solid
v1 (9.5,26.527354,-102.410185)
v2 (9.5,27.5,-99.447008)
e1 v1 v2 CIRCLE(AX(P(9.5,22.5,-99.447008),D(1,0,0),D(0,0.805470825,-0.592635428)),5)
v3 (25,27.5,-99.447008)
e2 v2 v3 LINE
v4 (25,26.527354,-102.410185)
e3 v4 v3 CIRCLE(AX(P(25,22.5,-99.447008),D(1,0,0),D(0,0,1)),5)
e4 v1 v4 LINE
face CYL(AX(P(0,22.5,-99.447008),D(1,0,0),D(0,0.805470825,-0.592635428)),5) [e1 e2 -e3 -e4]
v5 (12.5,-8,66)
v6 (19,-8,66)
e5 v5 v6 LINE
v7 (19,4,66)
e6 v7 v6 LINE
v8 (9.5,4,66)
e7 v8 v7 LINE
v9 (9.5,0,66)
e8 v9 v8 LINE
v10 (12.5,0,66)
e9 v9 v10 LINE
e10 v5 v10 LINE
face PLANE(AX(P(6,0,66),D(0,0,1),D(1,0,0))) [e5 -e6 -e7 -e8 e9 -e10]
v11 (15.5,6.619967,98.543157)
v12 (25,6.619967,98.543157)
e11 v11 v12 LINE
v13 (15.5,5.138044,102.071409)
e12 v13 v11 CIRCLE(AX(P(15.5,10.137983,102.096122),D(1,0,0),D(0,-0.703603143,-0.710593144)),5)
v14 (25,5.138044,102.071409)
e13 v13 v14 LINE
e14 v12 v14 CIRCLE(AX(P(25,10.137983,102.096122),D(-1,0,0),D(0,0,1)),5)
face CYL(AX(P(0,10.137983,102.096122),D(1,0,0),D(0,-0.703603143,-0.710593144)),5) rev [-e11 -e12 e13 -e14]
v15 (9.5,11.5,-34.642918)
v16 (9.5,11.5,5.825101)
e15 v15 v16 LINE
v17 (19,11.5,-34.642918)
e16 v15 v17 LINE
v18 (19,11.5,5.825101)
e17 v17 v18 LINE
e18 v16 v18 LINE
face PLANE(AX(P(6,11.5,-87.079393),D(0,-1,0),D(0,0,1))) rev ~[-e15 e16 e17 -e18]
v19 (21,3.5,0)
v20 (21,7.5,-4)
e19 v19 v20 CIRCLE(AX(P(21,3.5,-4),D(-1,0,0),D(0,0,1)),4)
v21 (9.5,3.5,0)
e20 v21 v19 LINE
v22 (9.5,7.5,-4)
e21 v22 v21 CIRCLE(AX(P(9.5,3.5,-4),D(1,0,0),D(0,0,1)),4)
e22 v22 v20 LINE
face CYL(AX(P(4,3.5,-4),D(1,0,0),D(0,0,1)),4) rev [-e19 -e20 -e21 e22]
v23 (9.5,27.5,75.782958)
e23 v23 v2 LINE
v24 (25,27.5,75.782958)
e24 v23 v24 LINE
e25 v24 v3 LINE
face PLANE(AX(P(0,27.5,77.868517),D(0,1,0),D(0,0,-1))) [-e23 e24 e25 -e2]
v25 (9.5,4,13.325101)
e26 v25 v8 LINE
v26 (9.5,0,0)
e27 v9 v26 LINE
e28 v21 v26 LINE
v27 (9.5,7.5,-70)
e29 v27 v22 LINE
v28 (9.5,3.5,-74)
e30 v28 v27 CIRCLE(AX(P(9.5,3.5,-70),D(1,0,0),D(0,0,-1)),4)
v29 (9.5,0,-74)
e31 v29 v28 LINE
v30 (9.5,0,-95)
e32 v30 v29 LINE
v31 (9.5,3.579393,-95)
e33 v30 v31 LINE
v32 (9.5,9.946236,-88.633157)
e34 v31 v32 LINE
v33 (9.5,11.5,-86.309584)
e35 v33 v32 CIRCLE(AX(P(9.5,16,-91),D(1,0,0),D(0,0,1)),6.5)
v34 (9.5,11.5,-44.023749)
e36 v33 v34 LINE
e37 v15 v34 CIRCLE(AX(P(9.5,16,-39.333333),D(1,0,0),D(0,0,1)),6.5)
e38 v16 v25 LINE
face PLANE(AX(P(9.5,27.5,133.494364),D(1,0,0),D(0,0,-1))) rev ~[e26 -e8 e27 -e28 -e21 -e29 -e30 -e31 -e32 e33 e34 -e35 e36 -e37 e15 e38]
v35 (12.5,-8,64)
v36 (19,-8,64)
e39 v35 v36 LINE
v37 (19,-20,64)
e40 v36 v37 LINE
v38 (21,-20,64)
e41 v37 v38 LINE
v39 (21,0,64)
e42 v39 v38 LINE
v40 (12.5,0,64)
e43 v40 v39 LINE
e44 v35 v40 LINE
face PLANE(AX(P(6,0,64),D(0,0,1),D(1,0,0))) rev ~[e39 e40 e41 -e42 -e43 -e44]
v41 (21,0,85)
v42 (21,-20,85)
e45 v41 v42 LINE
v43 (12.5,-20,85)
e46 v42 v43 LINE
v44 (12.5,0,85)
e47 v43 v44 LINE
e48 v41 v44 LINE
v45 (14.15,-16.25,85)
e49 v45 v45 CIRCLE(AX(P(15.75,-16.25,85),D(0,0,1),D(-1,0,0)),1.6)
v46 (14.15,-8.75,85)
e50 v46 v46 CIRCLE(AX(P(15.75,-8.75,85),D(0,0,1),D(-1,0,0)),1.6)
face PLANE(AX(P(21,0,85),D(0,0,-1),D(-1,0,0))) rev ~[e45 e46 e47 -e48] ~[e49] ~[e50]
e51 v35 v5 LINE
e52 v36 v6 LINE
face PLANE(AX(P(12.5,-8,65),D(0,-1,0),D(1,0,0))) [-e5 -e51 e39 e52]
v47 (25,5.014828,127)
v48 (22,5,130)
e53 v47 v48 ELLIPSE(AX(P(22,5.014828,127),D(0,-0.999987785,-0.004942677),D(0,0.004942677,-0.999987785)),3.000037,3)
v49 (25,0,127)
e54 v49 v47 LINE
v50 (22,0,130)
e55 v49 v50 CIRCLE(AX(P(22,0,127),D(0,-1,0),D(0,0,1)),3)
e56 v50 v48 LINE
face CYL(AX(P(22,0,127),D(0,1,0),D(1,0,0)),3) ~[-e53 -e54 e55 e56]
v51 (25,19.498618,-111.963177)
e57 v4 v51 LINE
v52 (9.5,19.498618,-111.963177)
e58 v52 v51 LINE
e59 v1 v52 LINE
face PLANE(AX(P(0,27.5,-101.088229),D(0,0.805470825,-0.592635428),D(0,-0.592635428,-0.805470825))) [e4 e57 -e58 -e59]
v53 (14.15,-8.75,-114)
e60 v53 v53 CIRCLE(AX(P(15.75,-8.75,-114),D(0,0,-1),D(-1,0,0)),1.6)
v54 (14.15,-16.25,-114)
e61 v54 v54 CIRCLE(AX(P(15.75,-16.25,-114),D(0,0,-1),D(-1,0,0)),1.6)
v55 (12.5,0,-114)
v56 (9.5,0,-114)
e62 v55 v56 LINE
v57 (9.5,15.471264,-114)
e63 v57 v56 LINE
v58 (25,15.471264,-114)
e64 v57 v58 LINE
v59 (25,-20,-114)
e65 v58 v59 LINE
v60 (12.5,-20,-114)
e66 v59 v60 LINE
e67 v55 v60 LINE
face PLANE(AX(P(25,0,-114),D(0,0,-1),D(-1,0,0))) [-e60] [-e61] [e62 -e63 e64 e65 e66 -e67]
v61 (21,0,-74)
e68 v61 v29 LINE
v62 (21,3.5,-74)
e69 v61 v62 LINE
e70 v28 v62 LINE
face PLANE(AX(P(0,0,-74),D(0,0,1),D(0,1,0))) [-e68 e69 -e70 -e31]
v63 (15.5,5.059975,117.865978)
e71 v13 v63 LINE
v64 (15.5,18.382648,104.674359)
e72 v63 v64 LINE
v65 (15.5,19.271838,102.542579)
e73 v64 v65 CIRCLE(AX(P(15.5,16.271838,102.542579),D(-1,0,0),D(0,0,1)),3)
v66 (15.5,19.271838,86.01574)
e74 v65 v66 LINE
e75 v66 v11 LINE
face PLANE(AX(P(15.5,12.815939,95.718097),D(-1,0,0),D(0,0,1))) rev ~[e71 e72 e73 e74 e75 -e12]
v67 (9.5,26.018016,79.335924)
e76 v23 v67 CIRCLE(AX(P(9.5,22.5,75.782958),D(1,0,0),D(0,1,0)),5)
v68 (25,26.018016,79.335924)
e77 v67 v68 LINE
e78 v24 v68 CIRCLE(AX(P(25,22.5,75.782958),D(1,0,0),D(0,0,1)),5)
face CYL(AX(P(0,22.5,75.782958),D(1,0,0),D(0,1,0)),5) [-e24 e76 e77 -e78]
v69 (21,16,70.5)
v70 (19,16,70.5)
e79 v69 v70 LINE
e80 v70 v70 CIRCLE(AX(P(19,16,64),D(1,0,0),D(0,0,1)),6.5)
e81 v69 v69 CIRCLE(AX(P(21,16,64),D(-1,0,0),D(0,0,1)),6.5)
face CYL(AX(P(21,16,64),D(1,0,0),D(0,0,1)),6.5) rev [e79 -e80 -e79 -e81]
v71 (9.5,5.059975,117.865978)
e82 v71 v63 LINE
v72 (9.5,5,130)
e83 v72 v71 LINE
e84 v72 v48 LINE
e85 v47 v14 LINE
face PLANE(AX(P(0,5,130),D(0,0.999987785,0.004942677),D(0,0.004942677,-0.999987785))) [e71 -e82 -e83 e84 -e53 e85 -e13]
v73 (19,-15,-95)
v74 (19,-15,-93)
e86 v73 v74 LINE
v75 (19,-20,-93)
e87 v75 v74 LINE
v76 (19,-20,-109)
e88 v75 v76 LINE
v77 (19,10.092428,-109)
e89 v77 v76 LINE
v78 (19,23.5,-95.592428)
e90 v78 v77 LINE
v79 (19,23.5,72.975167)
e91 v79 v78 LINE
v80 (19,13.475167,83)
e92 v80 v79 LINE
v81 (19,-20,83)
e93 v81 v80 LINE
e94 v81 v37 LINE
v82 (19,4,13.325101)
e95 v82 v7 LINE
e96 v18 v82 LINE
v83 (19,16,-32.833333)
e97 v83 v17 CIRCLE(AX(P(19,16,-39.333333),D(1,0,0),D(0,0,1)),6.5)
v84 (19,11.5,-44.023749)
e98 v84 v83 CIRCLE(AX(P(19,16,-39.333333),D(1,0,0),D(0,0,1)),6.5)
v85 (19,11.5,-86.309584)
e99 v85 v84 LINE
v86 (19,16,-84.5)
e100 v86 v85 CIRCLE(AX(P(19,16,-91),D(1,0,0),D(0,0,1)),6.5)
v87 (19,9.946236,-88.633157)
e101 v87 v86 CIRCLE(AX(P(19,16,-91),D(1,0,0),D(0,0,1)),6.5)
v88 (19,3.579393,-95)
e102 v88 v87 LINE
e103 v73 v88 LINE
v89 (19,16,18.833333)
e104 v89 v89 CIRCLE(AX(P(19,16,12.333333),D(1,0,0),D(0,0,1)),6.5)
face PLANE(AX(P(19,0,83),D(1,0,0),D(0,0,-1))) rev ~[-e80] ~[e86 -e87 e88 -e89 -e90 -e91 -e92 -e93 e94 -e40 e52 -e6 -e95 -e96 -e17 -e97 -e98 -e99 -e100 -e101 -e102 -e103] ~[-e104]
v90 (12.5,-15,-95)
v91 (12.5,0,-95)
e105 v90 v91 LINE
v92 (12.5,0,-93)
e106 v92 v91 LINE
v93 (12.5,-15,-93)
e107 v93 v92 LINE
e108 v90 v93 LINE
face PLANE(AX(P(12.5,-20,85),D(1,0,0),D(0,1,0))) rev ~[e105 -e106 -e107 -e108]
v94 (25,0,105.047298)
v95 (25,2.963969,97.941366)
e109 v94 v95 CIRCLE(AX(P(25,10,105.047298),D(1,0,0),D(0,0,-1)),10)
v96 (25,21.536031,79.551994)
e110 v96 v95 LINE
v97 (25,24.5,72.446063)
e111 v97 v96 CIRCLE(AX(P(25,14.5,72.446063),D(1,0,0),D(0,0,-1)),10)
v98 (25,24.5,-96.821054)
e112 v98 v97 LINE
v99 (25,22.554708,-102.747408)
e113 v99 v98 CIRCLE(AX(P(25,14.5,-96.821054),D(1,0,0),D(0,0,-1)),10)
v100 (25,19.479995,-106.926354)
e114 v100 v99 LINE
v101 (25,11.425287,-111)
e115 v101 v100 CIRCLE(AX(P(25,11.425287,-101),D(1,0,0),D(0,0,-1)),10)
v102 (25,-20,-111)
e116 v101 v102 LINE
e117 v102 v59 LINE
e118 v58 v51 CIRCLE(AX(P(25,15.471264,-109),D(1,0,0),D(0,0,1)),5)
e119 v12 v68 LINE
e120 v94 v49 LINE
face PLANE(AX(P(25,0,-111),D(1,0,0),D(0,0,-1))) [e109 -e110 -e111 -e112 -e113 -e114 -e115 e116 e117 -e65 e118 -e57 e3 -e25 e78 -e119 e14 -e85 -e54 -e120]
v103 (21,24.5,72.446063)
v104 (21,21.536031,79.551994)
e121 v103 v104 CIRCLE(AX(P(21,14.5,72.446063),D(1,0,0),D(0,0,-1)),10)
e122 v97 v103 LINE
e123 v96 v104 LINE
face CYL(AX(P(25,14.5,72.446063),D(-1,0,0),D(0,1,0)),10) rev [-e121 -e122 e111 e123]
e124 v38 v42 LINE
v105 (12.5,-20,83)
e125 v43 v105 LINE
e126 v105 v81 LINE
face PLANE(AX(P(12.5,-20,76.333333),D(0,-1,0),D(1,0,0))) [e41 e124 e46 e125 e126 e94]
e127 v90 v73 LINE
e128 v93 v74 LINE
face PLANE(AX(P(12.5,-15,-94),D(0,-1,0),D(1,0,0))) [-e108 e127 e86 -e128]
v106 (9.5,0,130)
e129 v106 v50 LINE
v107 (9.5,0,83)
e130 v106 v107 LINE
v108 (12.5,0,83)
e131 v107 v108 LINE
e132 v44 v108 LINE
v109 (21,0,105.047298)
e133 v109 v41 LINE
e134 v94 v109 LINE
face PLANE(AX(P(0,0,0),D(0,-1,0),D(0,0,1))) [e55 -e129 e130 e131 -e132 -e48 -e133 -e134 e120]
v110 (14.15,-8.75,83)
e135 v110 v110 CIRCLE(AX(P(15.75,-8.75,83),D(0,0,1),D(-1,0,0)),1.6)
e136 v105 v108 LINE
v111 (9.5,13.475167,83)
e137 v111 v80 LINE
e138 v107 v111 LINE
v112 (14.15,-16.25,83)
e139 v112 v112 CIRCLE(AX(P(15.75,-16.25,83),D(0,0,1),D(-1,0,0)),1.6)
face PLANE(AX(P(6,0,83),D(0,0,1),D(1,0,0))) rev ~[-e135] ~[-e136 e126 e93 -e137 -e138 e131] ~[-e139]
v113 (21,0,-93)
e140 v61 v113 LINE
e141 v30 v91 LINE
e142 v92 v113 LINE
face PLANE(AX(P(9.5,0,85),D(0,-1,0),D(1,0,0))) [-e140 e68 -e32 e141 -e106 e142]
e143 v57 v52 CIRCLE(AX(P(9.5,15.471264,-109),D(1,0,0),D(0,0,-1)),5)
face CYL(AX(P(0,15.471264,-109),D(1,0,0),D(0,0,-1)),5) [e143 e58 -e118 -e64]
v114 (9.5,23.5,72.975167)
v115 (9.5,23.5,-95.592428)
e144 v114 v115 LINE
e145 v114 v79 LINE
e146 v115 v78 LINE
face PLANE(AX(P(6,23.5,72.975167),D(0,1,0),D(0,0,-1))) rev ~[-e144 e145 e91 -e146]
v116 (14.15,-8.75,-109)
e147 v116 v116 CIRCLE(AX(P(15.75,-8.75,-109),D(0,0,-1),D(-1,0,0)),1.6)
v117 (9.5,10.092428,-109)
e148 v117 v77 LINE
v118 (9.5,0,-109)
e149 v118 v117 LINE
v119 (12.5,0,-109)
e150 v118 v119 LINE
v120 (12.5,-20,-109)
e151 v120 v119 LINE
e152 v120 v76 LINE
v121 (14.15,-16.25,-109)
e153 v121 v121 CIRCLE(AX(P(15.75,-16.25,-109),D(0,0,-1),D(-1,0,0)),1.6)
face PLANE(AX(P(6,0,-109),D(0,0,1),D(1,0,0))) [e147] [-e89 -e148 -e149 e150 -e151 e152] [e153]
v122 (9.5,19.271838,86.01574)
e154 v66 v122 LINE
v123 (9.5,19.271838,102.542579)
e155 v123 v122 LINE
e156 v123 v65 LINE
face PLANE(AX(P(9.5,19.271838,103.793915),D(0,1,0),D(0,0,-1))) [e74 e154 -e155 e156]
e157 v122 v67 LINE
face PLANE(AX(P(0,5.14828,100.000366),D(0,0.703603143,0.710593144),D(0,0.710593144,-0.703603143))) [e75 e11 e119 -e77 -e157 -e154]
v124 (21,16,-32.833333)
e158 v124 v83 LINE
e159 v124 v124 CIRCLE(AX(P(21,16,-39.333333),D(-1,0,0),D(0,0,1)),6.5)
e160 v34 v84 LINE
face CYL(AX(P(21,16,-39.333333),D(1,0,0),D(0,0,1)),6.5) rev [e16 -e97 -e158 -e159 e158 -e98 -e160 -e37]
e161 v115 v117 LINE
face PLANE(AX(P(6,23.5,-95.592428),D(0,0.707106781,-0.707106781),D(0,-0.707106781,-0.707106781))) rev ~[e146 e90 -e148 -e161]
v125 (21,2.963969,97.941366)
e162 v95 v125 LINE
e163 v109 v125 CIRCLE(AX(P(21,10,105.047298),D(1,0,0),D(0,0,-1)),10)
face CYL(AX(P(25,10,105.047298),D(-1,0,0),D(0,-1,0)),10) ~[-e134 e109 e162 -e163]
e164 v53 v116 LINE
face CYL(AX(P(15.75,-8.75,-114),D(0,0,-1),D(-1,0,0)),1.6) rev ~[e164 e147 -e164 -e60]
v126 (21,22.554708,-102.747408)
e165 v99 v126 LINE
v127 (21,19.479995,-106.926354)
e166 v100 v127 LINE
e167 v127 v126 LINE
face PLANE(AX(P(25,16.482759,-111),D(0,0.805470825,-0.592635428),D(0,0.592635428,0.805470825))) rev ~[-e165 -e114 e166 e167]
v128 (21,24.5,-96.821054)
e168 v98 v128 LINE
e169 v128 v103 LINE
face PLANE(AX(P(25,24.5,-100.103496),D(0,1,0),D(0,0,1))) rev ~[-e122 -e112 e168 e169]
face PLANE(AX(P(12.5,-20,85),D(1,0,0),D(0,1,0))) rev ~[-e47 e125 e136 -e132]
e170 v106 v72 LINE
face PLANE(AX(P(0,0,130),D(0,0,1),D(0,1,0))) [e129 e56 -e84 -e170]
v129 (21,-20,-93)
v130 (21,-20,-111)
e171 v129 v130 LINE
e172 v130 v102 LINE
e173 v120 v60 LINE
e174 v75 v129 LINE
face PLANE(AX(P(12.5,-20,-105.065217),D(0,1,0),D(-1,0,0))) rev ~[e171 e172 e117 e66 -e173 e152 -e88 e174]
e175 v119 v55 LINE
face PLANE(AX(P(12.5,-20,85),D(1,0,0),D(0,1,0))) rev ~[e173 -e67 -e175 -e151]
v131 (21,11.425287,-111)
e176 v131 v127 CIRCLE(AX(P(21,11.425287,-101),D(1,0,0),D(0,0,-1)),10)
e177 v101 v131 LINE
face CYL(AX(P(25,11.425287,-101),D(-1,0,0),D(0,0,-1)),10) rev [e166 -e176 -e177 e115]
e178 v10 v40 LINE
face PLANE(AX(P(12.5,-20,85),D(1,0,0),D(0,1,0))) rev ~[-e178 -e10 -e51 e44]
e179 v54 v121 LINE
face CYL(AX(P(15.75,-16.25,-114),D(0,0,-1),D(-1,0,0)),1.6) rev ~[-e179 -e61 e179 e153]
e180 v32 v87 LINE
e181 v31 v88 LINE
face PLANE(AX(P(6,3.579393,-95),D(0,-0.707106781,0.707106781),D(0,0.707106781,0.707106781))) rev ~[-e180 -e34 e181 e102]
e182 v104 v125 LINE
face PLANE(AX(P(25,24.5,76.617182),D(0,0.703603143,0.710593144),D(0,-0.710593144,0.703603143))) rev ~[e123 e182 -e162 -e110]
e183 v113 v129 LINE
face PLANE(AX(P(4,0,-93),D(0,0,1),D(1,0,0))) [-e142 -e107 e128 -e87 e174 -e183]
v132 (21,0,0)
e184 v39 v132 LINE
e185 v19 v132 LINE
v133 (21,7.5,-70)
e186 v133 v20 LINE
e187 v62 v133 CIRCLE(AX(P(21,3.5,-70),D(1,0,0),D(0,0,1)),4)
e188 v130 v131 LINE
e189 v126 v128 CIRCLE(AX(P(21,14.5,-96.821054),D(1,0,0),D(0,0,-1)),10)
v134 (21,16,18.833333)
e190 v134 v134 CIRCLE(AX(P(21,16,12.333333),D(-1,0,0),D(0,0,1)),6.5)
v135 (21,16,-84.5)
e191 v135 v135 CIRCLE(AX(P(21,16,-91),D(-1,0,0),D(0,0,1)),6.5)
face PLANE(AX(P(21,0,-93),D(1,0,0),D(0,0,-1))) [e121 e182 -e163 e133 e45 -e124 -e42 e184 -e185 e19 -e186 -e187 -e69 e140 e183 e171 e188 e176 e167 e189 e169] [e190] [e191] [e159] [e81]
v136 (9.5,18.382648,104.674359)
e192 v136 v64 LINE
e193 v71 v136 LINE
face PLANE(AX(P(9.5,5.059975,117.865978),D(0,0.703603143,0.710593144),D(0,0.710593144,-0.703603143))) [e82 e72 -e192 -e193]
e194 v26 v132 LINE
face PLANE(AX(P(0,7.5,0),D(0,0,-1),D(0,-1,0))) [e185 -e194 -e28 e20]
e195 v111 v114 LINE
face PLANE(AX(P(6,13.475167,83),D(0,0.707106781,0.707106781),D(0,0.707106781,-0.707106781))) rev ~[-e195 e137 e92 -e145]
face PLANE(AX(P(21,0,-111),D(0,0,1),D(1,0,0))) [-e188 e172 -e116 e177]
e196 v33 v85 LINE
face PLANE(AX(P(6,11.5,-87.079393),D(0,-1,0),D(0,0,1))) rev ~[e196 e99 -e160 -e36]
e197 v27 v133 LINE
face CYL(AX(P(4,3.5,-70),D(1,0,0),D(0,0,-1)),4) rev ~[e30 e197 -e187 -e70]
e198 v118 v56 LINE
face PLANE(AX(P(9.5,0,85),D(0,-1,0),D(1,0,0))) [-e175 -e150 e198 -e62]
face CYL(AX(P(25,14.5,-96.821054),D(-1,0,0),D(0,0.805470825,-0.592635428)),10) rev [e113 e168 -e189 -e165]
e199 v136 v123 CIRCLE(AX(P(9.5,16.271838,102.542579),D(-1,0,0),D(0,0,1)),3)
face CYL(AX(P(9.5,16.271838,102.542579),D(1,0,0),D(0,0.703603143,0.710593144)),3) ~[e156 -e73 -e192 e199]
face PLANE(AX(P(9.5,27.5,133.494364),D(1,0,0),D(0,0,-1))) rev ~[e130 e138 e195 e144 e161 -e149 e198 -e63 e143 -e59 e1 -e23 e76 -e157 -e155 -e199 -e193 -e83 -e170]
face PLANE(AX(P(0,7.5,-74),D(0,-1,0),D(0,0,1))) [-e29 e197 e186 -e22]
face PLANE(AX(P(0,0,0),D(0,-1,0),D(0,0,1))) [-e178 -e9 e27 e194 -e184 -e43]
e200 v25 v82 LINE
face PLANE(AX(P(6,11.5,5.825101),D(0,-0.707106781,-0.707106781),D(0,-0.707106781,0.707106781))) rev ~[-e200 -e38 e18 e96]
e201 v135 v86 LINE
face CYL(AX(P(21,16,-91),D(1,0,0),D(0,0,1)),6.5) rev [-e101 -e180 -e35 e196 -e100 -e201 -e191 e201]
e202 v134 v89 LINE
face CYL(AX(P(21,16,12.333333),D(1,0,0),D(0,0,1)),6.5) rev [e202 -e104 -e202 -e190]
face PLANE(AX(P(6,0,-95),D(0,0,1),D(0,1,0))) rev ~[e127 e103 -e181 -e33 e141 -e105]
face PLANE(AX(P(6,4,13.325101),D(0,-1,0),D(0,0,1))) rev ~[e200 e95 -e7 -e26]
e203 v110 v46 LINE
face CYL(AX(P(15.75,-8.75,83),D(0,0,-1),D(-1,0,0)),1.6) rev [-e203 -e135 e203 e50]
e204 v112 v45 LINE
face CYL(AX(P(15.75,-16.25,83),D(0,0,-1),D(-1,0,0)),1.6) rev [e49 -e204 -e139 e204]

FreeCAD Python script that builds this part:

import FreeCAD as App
import Part
import Sketcher
Q = App.Units.Quantity


def edges_at(feature, points):
    """Names of the edges that pass closest to the given points."""
    edges = feature.Shape.Edges
    near = lambda p: min(range(len(edges)), key=lambda i: edges[i].distToShape(Part.Vertex(*p))[0])
    return sorted({f"Edge{near(p) + 1}" for p in points})

doc = App.newDocument("Part")
body = doc.addObject("PartDesign::Body", "Body")

sketch1 = body.newObject("Sketcher::SketchObject", "Sketch")
sketch1.AttachmentSupport = (doc.getObject("YZ_Plane"), [""])
sketch1.MapMode = "FlatFace"
sketch1.addGeometry([
    Part.LineSegment(App.Vector(0, 130, 0), App.Vector(0, 0, 0)),
    Part.LineSegment(App.Vector(0, 0, 0), App.Vector(7.5, 0, 0)),
    Part.LineSegment(App.Vector(7.5, 0, 0), App.Vector(7.5, -74, 0)),
    Part.LineSegment(App.Vector(7.5, -74, 0), App.Vector(0, -74, 0)),
    Part.LineSegment(App.Vector(0, -74, 0), App.Vector(0, -114, 0)),
    Part.LineSegment(App.Vector(0, -114, 0), App.Vector(18, -114, 0)),
    Part.LineSegment(App.Vector(18, -114, 0), App.Vector(27.5, -101.088229, 0)),
    Part.LineSegment(App.Vector(27.5, -101.088229, 0), App.Vector(27.5, 77.868517, 0)),
    Part.LineSegment(App.Vector(27.5, 77.868517, 0), App.Vector(5.14828, 100.000366, 0)),
    Part.LineSegment(App.Vector(5.14828, 100.000366, 0), App.Vector(5, 130, 0)),
    Part.LineSegment(App.Vector(5, 130, 0), App.Vector(0, 130, 0)),
], False)
sketch1.addConstraint([
    Sketcher.Constraint("Coincident", 0, 2, 1, 1),
    Sketcher.Constraint("Coincident", 1, 2, 2, 1),
    Sketcher.Constraint("Coincident", 2, 2, 3, 1),
    Sketcher.Constraint("Coincident", 3, 2, 4, 1),
    Sketcher.Constraint("Coincident", 4, 2, 5, 1),
    Sketcher.Constraint("Coincident", 5, 2, 6, 1),
    Sketcher.Constraint("Coincident", 6, 2, 7, 1),
    Sketcher.Constraint("Coincident", 7, 2, 8, 1),
    Sketcher.Constraint("Coincident", 8, 2, 9, 1),
    Sketcher.Constraint("Coincident", 9, 2, 10, 1),
    Sketcher.Constraint("Coincident", 10, 2, 0, 1),
    Sketcher.Constraint("Vertical", 0),
    Sketcher.Constraint("Horizontal", 1),
    Sketcher.Constraint("Vertical", 2),
    Sketcher.Constraint("Horizontal", 3),
    Sketcher.Constraint("Vertical", 4),
    Sketcher.Constraint("Horizontal", 5),
    Sketcher.Constraint("Vertical", 7),
    Sketcher.Constraint("Horizontal", 10),
    Sketcher.Constraint("Coincident", 0, 2, -1, 1),
    Sketcher.Constraint("PointOnObject", 3, 2, -2),
    Sketcher.Constraint("DistanceX", 5, 1, 5, 2, Q("18 mm")),
    Sketcher.Constraint("DistanceX", 10, 2, 10, 1, Q("5 mm")),
    Sketcher.Constraint("DistanceY", 0, 2, 0, 1, Q("130 mm")),
    Sketcher.Constraint("DistanceY", 2, 2, 2, 1, Q("74 mm")),
    Sketcher.Constraint("DistanceY", 4, 2, 4, 1, Q("40 mm")),
    Sketcher.Constraint("Distance", 9, Q("30 mm")),
    Sketcher.Constraint("DistanceX", 1, 1, 1, 2, Q("7.5 mm")),
    Sketcher.Constraint("DistanceX", 2, 2, 6, 2, Q("20 mm")),
    Sketcher.Constraint("Distance", 6, Q("16.030091 mm")),
    Sketcher.Constraint("DistanceY", 7, 1, 7, 2, Q("178.956747 mm")),
    Sketcher.Constraint("DistanceX", -1, 1, 8, 2, Q("5.14828 mm")),
])
pad1 = body.newObject("PartDesign::Pad", "Pad")
pad1.Profile = sketch1
pad1.Length = 25

sketch2 = body.newObject("Sketcher::SketchObject", "Sketch001")
sketch2.AttachmentSupport = (doc.getObject("YZ_Plane"), [""])
sketch2.MapMode = "FlatFace"
sketch2.AttachmentOffset = App.Placement(App.Vector(0, 0, 25), App.Rotation())
sketch2.addGeometry([
    Part.LineSegment(App.Vector(0, 100.876179, 0), App.Vector(0, -111, 0)),
    Part.LineSegment(App.Vector(0, -111, 0), App.Vector(16.482759, -111, 0)),
    Part.LineSegment(App.Vector(16.482759, -111, 0), App.Vector(24.5, -100.103496, 0)),
    Part.LineSegment(App.Vector(24.5, -100.103496, 0), App.Vector(24.5, 76.617182, 0)),
    Part.LineSegment(App.Vector(24.5, 76.617182, 0), App.Vector(0, 100.876179, 0)),
], False)
sketch2.addConstraint([
    Sketcher.Constraint("Coincident", 0, 2, 1, 1),
    Sketcher.Constraint("Coincident", 1, 2, 2, 1),
    Sketcher.Constraint("Coincident", 2, 2, 3, 1),
    Sketcher.Constraint("Coincident", 3, 2, 4, 1),
    Sketcher.Constraint("Coincident", 4, 2, 0, 1),
    Sketcher.Constraint("Vertical", 0),
    Sketcher.Constraint("Horizontal", 1),
    Sketcher.Constraint("Vertical", 3),
    Sketcher.Constraint("PointOnObject", 0, 2, -2),
    Sketcher.Constraint("DistanceY", 0, 2, -1, 1, Q("111 mm")),
    Sketcher.Constraint("DistanceX", -1, 1, 2, 2, Q("24.5 mm")),
    Sketcher.Constraint("DistanceX", 1, 1, 1, 2, Q("16.482759 mm")),
    Sketcher.Constraint("DistanceY", 0, 2, 0, 1, Q("211.876179 mm")),
    Sketcher.Constraint("DistanceY", 3, 1, 3, 2, Q("176.720678 mm")),
    Sketcher.Constraint("Distance", 4, Q("34.478239 mm")),
])
pocket1 = body.newObject("PartDesign::Pocket", "Pocket")
pocket1.Profile = sketch2
pocket1.Length = 4
doc.recompute()

datumplane = body.newObject("PartDesign::Plane", "DatumPlane")
datumplane.AttachmentSupport = (doc.getObject("YZ_Plane"), [""])
datumplane.MapMode = "FlatFace"
datumplane.AttachmentOffset = App.Placement(App.Vector(0, 0, 12.5), App.Rotation())
mirrored = body.newObject("PartDesign::Mirrored", "Mirrored")
mirrored.Originals = [pocket1]
mirrored.MirrorPlane = (datumplane, [""])
body.Tip = mirrored
doc.recompute()

fillet = body.newObject("PartDesign::Fillet", "Fillet")
fillet.Base = (mirrored, edges_at(mirrored, [(12.5, 7.5, -74), (12.5, 7.5, 0)]))
fillet.Radius = 4
doc.recompute()

fillet2 = body.newObject("PartDesign::Fillet", "Fillet001")
fillet2.Base = (fillet, edges_at(fillet, [
    (23, 0, 100.876),
    (23, 24.5, 76.617),
    (23, 24.5, -100.103),
    (23, 16.483, -111),
    (2, 0, 100.876),
    (2, 16.483, -111),
    (2, 24.5, -100.103),
    (2, 24.5, 76.617),
]))
fillet2.Radius = 10
doc.recompute()

fillet3 = body.newObject("PartDesign::Fillet", "Fillet002")
fillet3.Base = (fillet2, edges_at(fillet2, [
    (12.5, 5.148, 100),
    (12.5, 27.5, 77.869),
    (12.5, 27.5, -101.088),
    (12.5, 18, -114),
]))
fillet3.Radius = 5
doc.recompute()

fillet4 = body.newObject("PartDesign::Fillet", "Fillet003")
fillet4.Base = (fillet3, edges_at(fillet3, [(0, 2.5, 130), (25, 2.5, 130)]))
fillet4.Radius = 3

sketch3 = body.newObject("Sketcher::SketchObject", "Sketch002")
sketch3.AttachmentSupport = (doc.getObject("YZ_Plane"), [""])
sketch3.MapMode = "FlatFace"
sketch3.AttachmentOffset = App.Placement(App.Vector(0, 0, 12.5), App.Rotation())
sketch3.addGeometry([
    Part.LineSegment(App.Vector(19.271838, 103.793915, 0), App.Vector(5.059975, 117.865978, 0)),
    Part.LineSegment(App.Vector(5.059975, 117.865978, 0), App.Vector(5.059975, 95.865978, 0)),
    Part.LineSegment(App.Vector(5.059975, 95.865978, 0), App.Vector(19.271838, 72.60525, 0)),
    Part.LineSegment(App.Vector(19.271838, 72.60525, 0), App.Vector(19.271838, 103.793915, 0)),
], False)
sketch3.addConstraint([
    Sketcher.Constraint("Coincident", 0, 2, 1, 1),
    Sketcher.Constraint("Coincident", 1, 2, 2, 1),
    Sketcher.Constraint("Coincident", 2, 2, 3, 1),
    Sketcher.Constraint("Coincident", 3, 2, 0, 1),
    Sketcher.Constraint("Vertical", 1),
    Sketcher.Constraint("Vertical", 3),
    Sketcher.Constraint("DistanceY", 1, 2, 1, 1, Q("22 mm")),
    Sketcher.Constraint("Distance", 0, Q("20 mm")),
    Sketcher.Constraint("DistanceY", 3, 1, 3, 2, Q("31.188665 mm")),
    Sketcher.Constraint("DistanceX", -1, 1, 2, 2, Q("19.271838 mm")),
    Sketcher.Constraint("DistanceY", -1, 1, 2, 2, Q("72.60525 mm")),
    Sketcher.Constraint("Distance", 2, Q("27.258732 mm")),
])
pad2 = body.newObject("PartDesign::Pad", "Pad001")
pad2.Profile = sketch3
pad2.Type = "TwoLengths"
pad2.Length = 3
pad2.Length2 = 3
doc.recompute()

fillet5 = body.newObject("PartDesign::Fillet", "Fillet004")
fillet5.Base = (pad2, edges_at(pad2, [(12.5, 19.272, 103.794)]))
fillet5.Radius = 3

sketch4 = body.newObject("Sketcher::SketchObject", "Sketch003")
sketch4.AttachmentSupport = (doc.getObject("XZ_Plane"), [""])
sketch4.MapMode = "FlatFace"
sketch4.addGeometry([
    Part.LineSegment(App.Vector(4, -111, 0), App.Vector(0, -111, 0)),
    Part.LineSegment(App.Vector(0, -111, 0), App.Vector(0, -114, 0)),
    Part.LineSegment(App.Vector(0, -114, 0), App.Vector(25, -114, 0)),
    Part.LineSegment(App.Vector(25, -114, 0), App.Vector(25, -111, 0)),
    Part.LineSegment(App.Vector(25, -111, 0), App.Vector(21, -111, 0)),
    Part.LineSegment(App.Vector(21, -111, 0), App.Vector(21, -93, 0)),
    Part.LineSegment(App.Vector(21, -93, 0), App.Vector(4, -93, 0)),
    Part.LineSegment(App.Vector(4, -93, 0), App.Vector(4, -111, 0)),
    Part.LineSegment(App.Vector(6, -109, 0), App.Vector(6, -95, 0)),
    Part.LineSegment(App.Vector(6, -95, 0), App.Vector(19, -95, 0)),
    Part.LineSegment(App.Vector(19, -95, 0), App.Vector(19, -109, 0)),
    Part.LineSegment(App.Vector(19, -109, 0), App.Vector(6, -109, 0)),
], False)
sketch4.addConstraint([
    Sketcher.Constraint("Coincident", 0, 2, 1, 1),
    Sketcher.Constraint("Coincident", 1, 2, 2, 1),
    Sketcher.Constraint("Coincident", 2, 2, 3, 1),
    Sketcher.Constraint("Coincident", 3, 2, 4, 1),
    Sketcher.Constraint("Coincident", 4, 2, 5, 1),
    Sketcher.Constraint("Coincident", 5, 2, 6, 1),
    Sketcher.Constraint("Coincident", 6, 2, 7, 1),
    Sketcher.Constraint("Coincident", 7, 2, 0, 1),
    Sketcher.Constraint("Coincident", 8, 2, 9, 1),
    Sketcher.Constraint("Coincident", 9, 2, 10, 1),
    Sketcher.Constraint("Coincident", 10, 2, 11, 1),
    Sketcher.Constraint("Coincident", 11, 2, 8, 1),
    Sketcher.Constraint("Horizontal", 0),
    Sketcher.Constraint("Vertical", 1),
    Sketcher.Constraint("Horizontal", 2),
    Sketcher.Constraint("Vertical", 3),
    Sketcher.Constraint("Horizontal", 4),
    Sketcher.Constraint("Vertical", 5),
    Sketcher.Constraint("Horizontal", 6),
    Sketcher.Constraint("Vertical", 7),
    Sketcher.Constraint("Vertical", 8),
    Sketcher.Constraint("Horizontal", 9),
    Sketcher.Constraint("Vertical", 10),
    Sketcher.Constraint("Horizontal", 11),
    Sketcher.Constraint("PointOnObject", 0, 2, -2),
    Sketcher.Constraint("Horizontal", 0, 2, 3, 2),
    Sketcher.Constraint("Equal", 0, 4),
    Sketcher.Constraint("DistanceX", 0, 2, 0, 1, Q("4 mm")),
    Sketcher.Constraint("DistanceX", 2, 1, 2, 2, Q("25 mm")),
    Sketcher.Constraint("DistanceX", 9, 1, 9, 2, Q("13 mm")),
    Sketcher.Constraint("DistanceY", 1, 2, 1, 1, Q("3 mm")),
    Sketcher.Constraint("DistanceY", 5, 1, 5, 2, Q("18 mm")),
    Sketcher.Constraint("DistanceY", 8, 1, 8, 2, Q("14 mm")),
    Sketcher.Constraint("DistanceY", 0, 2, -1, 1, Q("111 mm")),
    Sketcher.Constraint("DistanceX", -1, 1, 8, 2, Q("6 mm")),
    Sketcher.Constraint("DistanceY", 8, 2, -1, 1, Q("95 mm")),
])
pad3 = body.newObject("PartDesign::Pad", "Pad002")
pad3.Profile = sketch4
pad3.Length = 20

sketch5 = body.newObject("Sketcher::SketchObject", "Sketch004")
sketch5.AttachmentSupport = (doc.getObject("XZ_Plane"), [""])
sketch5.MapMode = "FlatFace"
sketch5.addGeometry([
    Part.LineSegment(App.Vector(21, 85, 0), App.Vector(4, 85, 0)),
    Part.LineSegment(App.Vector(4, 85, 0), App.Vector(4, 64, 0)),
    Part.LineSegment(App.Vector(4, 64, 0), App.Vector(6, 64, 0)),
    Part.LineSegment(App.Vector(6, 64, 0), App.Vector(6, 83, 0)),
    Part.LineSegment(App.Vector(6, 83, 0), App.Vector(19, 83, 0)),
    Part.LineSegment(App.Vector(19, 83, 0), App.Vector(19, 64, 0)),
    Part.LineSegment(App.Vector(19, 64, 0), App.Vector(21, 64, 0)),
    Part.LineSegment(App.Vector(21, 64, 0), App.Vector(21, 85, 0)),
], False)
sketch5.addConstraint([
    Sketcher.Constraint("Coincident", 0, 2, 1, 1),
    Sketcher.Constraint("Coincident", 1, 2, 2, 1),
    Sketcher.Constraint("Coincident", 2, 2, 3, 1),
    Sketcher.Constraint("Coincident", 3, 2, 4, 1),
    Sketcher.Constraint("Coincident", 4, 2, 5, 1),
    Sketcher.Constraint("Coincident", 5, 2, 6, 1),
    Sketcher.Constraint("Coincident", 6, 2, 7, 1),
    Sketcher.Constraint("Coincident", 7, 2, 0, 1),
    Sketcher.Constraint("Horizontal", 0),
    Sketcher.Constraint("Vertical", 1),
    Sketcher.Constraint("Horizontal", 2),
    Sketcher.Constraint("Vertical", 3),
    Sketcher.Constraint("Horizontal", 4),
    Sketcher.Constraint("Vertical", 5),
    Sketcher.Constraint("Horizontal", 6),
    Sketcher.Constraint("Vertical", 7),
    Sketcher.Constraint("Horizontal", 2, 2, 5, 2),
    Sketcher.Constraint("Equal", 2, 6),
    Sketcher.Constraint("DistanceX", 0, 2, 0, 1, Q("17 mm")),
    Sketcher.Constraint("DistanceX", 2, 1, 2, 2, Q("2 mm")),
    Sketcher.Constraint("DistanceY", 1, 2, 1, 1, Q("21 mm")),
    Sketcher.Constraint("DistanceY", 3, 1, 3, 2, Q("19 mm")),
    Sketcher.Constraint("DistanceX", -1, 1, 0, 2, Q("4 mm")),
    Sketcher.Constraint("DistanceY", -1, 1, 0, 2, Q("85 mm")),
])
pad4 = body.newObject("PartDesign::Pad", "Pad003")
pad4.Profile = sketch5
pad4.Length = 20

sketch6 = body.newObject("Sketcher::SketchObject", "Sketch005")
sketch6.AttachmentSupport = (doc.getObject("XZ_Plane"), [""])
sketch6.MapMode = "FlatFace"
sketch6.addGeometry([
    Part.LineSegment(App.Vector(6, 66, 0), App.Vector(6, 64, 0)),
    Part.LineSegment(App.Vector(6, 64, 0), App.Vector(19, 64, 0)),
    Part.LineSegment(App.Vector(19, 64, 0), App.Vector(19, 66, 0)),
    Part.LineSegment(App.Vector(19, 66, 0), App.Vector(6, 66, 0)),
], False)
sketch6.addConstraint([
    Sketcher.Constraint("Coincident", 0, 2, 1, 1),
    Sketcher.Constraint("Coincident", 1, 2, 2, 1),
    Sketcher.Constraint("Coincident", 2, 2, 3, 1),
    Sketcher.Constraint("Coincident", 3, 2, 0, 1),
    Sketcher.Constraint("Vertical", 0),
    Sketcher.Constraint("Horizontal", 1),
    Sketcher.Constraint("Vertical", 2),
    Sketcher.Constraint("Horizontal", 3),
    Sketcher.Constraint("DistanceX", 1, 1, 1, 2, Q("13 mm")),
    Sketcher.Constraint("DistanceY", 0, 2, 0, 1, Q("2 mm")),
    Sketcher.Constraint("DistanceX", -1, 1, 0, 2, Q("6 mm")),
    Sketcher.Constraint("DistanceY", -1, 1, 0, 2, Q("64 mm")),
])
pad5 = body.newObject("PartDesign::Pad", "Pad004")
pad5.Profile = sketch6
pad5.Length = 8

sketch7 = body.newObject("Sketcher::SketchObject", "Sketch006")
sketch7.AttachmentSupport = (doc.getObject("XZ_Plane"), [""])
sketch7.MapMode = "FlatFace"
sketch7.AttachmentOffset = App.Placement(App.Vector(0, 0, 20), App.Rotation())
sketch7.addGeometry([
    Part.LineSegment(App.Vector(6, -93, 0), App.Vector(6, -95, 0)),
    Part.LineSegment(App.Vector(6, -95, 0), App.Vector(19, -95, 0)),
    Part.LineSegment(App.Vector(19, -95, 0), App.Vector(19, -93, 0)),
    Part.LineSegment(App.Vector(19, -93, 0), App.Vector(6, -93, 0)),
], False)
sketch7.addConstraint([
    Sketcher.Constraint("Coincident", 0, 2, 1, 1),
    Sketcher.Constraint("Coincident", 1, 2, 2, 1),
    Sketcher.Constraint("Coincident", 2, 2, 3, 1),
    Sketcher.Constraint("Coincident", 3, 2, 0, 1),
    Sketcher.Constraint("Vertical", 0),
    Sketcher.Constraint("Horizontal", 1),
    Sketcher.Constraint("Vertical", 2),
    Sketcher.Constraint("Horizontal", 3),
    Sketcher.Constraint("DistanceX", 1, 1, 1, 2, Q("13 mm")),
    Sketcher.Constraint("DistanceY", 0, 2, 0, 1, Q("2 mm")),
    Sketcher.Constraint("DistanceX", -1, 1, 0, 2, Q("6 mm")),
    Sketcher.Constraint("DistanceY", 0, 2, -1, 1, Q("95 mm")),
])
pocket2 = body.newObject("PartDesign::Pocket", "Pocket001")
pocket2.Profile = sketch7
pocket2.Length = 5

sketch8 = body.newObject("Sketcher::SketchObject", "Sketch007")
sketch8.AttachmentSupport = (doc.getObject("XY_Plane"), [""])
sketch8.MapMode = "FlatFace"
sketch8.AttachmentOffset = App.Placement(App.Vector(0, 0, -114), App.Rotation())
sketch8.addGeometry([
    Part.Circle(App.Vector(15.75, -16.25, 0), App.Vector(0, 0, 1), 1.6),
    Part.Circle(App.Vector(15.75, -8.75, 0), App.Vector(0, 0, 1), 1.6),
    Part.Circle(App.Vector(9.25, -8.75, 0), App.Vector(0, 0, 1), 1.6),
    Part.Circle(App.Vector(9.25, -16.25, 0), App.Vector(0, 0, 1), 1.6),
], False)
sketch8.addConstraint([
    Sketcher.Constraint("Equal", 0, 1),
    Sketcher.Constraint("Equal", 1, 2),
    Sketcher.Constraint("Equal", 2, 3),
    Sketcher.Constraint("Horizontal", 1, 3, 2, 3),
    Sketcher.Constraint("Horizontal", 0, 3, 3, 3),
    Sketcher.Constraint("Vertical", 0, 3, 1, 3),
    Sketcher.Constraint("Vertical", 2, 3, 3, 3),
    Sketcher.Constraint("Diameter", 0, Q("3.2 mm")),
    Sketcher.Constraint("DistanceY", 0, 3, 1, 3, Q("7.5 mm")),
    Sketcher.Constraint("DistanceX", 2, 3, 1, 3, Q("6.5 mm")),
    Sketcher.Constraint("DistanceX", -1, 1, 0, 3, Q("15.75 mm")),
    Sketcher.Constraint("DistanceY", 0, 3, -1, 1, Q("16.25 mm")),
])
pocket3 = body.newObject("PartDesign::Pocket", "Pocket002")
pocket3.Profile = sketch8
pocket3.Length = 19
pocket3.Reversed = True

sketch9 = body.newObject("Sketcher::SketchObject", "Sketch008")
sketch9.AttachmentSupport = (doc.getObject("XY_Plane"), [""])
sketch9.MapMode = "FlatFace"
sketch9.AttachmentOffset = App.Placement(App.Vector(0, 0, 83), App.Rotation())
sketch9.addGeometry([
    Part.Circle(App.Vector(15.75, -16.25, 0), App.Vector(0, 0, 1), 1.6),
    Part.Circle(App.Vector(9.25, -16.25, 0), App.Vector(0, 0, 1), 1.6),
    Part.Circle(App.Vector(9.25, -8.75, 0), App.Vector(0, 0, 1), 1.6),
    Part.Circle(App.Vector(15.75, -8.75, 0), App.Vector(0, 0, 1), 1.6),
], False)
sketch9.addConstraint([
    Sketcher.Constraint("Equal", 0, 1),
    Sketcher.Constraint("Equal", 1, 2),
    Sketcher.Constraint("Equal", 2, 3),
    Sketcher.Constraint("Horizontal", 0, 3, 1, 3),
    Sketcher.Constraint("Horizontal", 2, 3, 3, 3),
    Sketcher.Constraint("Vertical", 1, 3, 2, 3),
    Sketcher.Constraint("Vertical", 0, 3, 3, 3),
    Sketcher.Constraint("Diameter", 0, Q("3.2 mm")),
    Sketcher.Constraint("DistanceX", 1, 3, 0, 3, Q("6.5 mm")),
    Sketcher.Constraint("DistanceY", 1, 3, 2, 3, Q("7.5 mm")),
    Sketcher.Constraint("DistanceX", -1, 1, 0, 3, Q("15.75 mm")),
    Sketcher.Constraint("DistanceY", 0, 3, -1, 1, Q("16.25 mm")),
])
pocket4 = body.newObject("PartDesign::Pocket", "Pocket003")
pocket4.Profile = sketch9
pocket4.Length = 2
pocket4.Reversed = True

sketch10 = body.newObject("Sketcher::SketchObject", "Sketch009")
sketch10.AttachmentSupport = (doc.getObject("YZ_Plane"), [""])
sketch10.MapMode = "FlatFace"
sketch10.AttachmentOffset = App.Placement(App.Vector(0, 0, 12.5), App.Rotation())
sketch10.addGeometry([
    Part.LineSegment(App.Vector(13.475167, 83, 0), App.Vector(0, 83, 0)),
    Part.LineSegment(App.Vector(0, 83, 0), App.Vector(0, 66, 0)),
    Part.LineSegment(App.Vector(0, 66, 0), App.Vector(4, 66, 0)),
    Part.LineSegment(App.Vector(4, 66, 0), App.Vector(4, 13.325101, 0)),
    Part.LineSegment(App.Vector(4, 13.325101, 0), App.Vector(11.5, 5.825101, 0)),
    Part.LineSegment(App.Vector(11.5, 5.825101, 0), App.Vector(11.5, -87.079393, 0)),
    Part.LineSegment(App.Vector(11.5, -87.079393, 0), App.Vector(3.579393, -95, 0)),
    Part.LineSegment(App.Vector(3.579393, -95, 0), App.Vector(0, -95, 0)),
    Part.LineSegment(App.Vector(0, -95, 0), App.Vector(0, -109, 0)),
    Part.LineSegment(App.Vector(0, -109, 0), App.Vector(10.092428, -109, 0)),
    Part.LineSegment(App.Vector(10.092428, -109, 0), App.Vector(23.5, -95.592428, 0)),
    Part.LineSegment(App.Vector(23.5, -95.592428, 0), App.Vector(23.5, 72.975167, 0)),
    Part.LineSegment(App.Vector(23.5, 72.975167, 0), App.Vector(13.475167, 83, 0)),
], False)
sketch10.addConstraint([
    Sketcher.Constraint("Coincident", 0, 2, 1, 1),
    Sketcher.Constraint("Coincident", 1, 2, 2, 1),
    Sketcher.Constraint("Coincident", 2, 2, 3, 1),
    Sketcher.Constraint("Coincident", 3, 2, 4, 1),
    Sketcher.Constraint("Coincident", 4, 2, 5, 1),
    Sketcher.Constraint("Coincident", 5, 2, 6, 1),
    Sketcher.Constraint("Coincident", 6, 2, 7, 1),
    Sketcher.Constraint("Coincident", 7, 2, 8, 1),
    Sketcher.Constraint("Coincident", 8, 2, 9, 1),
    Sketcher.Constraint("Coincident", 9, 2, 10, 1),
    Sketcher.Constraint("Coincident", 10, 2, 11, 1),
    Sketcher.Constraint("Coincident", 11, 2, 12, 1),
    Sketcher.Constraint("Coincident", 12, 2, 0, 1),
    Sketcher.Constraint("Horizontal", 0),
    Sketcher.Constraint("Vertical", 1),
    Sketcher.Constraint("Horizontal", 2),
    Sketcher.Constraint("Vertical", 3),
    Sketcher.Constraint("Vertical", 5),
    Sketcher.Constraint("Horizontal", 7),
    Sketcher.Constraint("Vertical", 8),
    Sketcher.Constraint("Horizontal", 9),
    Sketcher.Constraint("Vertical", 11),
    Sketcher.Constraint("PointOnObject", 0, 2, -2),
    Sketcher.Constraint("PointOnObject", 7, 2, -2),
    Sketcher.Constraint("Perpendicular", 4, 6),
    Sketcher.Constraint("Parallel", 6, 10),
    Sketcher.Constraint("Perpendicular", 10, 12),
    Sketcher.Constraint("DistanceX", 2, 1, 2, 2, Q("4 mm")),
    Sketcher.Constraint("DistanceY", 1, 2, 1, 1, Q("17 mm")),
    Sketcher.Constraint("DistanceY", 8, 2, 8, 1, Q("14 mm")),
    Sketcher.Constraint("Angle", 4, Q("-45 deg")),
    Sketcher.Constraint("DistanceY", -1, 1, 0, 2, Q("83 mm")),
    Sketcher.Constraint("DistanceY", 6, 2, -1, 1, Q("95 mm")),
    Sketcher.Constraint("DistanceX", 5, 2, 10, 2, Q("12 mm")),
    Sketcher.Constraint("DistanceX", -1, 1, 4, 2, Q("11.5 mm")),
    Sketcher.Constraint("DistanceY", 3, 2, 3, 1, Q("52.674899 mm")),
    Sketcher.Constraint("Distance", 6, Q("11.20143 mm")),
    Sketcher.Constraint("Distance", 10, Q("18.961171 mm")),
    Sketcher.Constraint("DistanceX", 0, 2, 0, 1, Q("13.475167 mm")),
])
pocket5 = body.newObject("PartDesign::Pocket", "Pocket004")
pocket5.Profile = sketch10
pocket5.Type = "TwoLengths"
pocket5.Length = 6.5
pocket5.Length2 = 6.5
pocket5.Reversed = True

sketch11 = body.newObject("Sketcher::SketchObject", "Sketch010")
sketch11.AttachmentSupport = (doc.getObject("YZ_Plane"), [""])
sketch11.MapMode = "FlatFace"
sketch11.AttachmentOffset = App.Placement(App.Vector(0, 0, 21), App.Rotation())
sketch11.addGeometry([
    Part.Circle(App.Vector(16, -91, 0), App.Vector(0, 0, 1), 6.5),
    Part.Circle(App.Vector(16, -39.333333, 0), App.Vector(0, 0, 1), 6.5),
    Part.Circle(App.Vector(16, 64, 0), App.Vector(0, 0, 1), 6.5),
    Part.Circle(App.Vector(16, 12.333333, 0), App.Vector(0, 0, 1), 6.5),
], False)
sketch11.addConstraint([
    Sketcher.Constraint("Equal", 0, 1),
    Sketcher.Constraint("Equal", 1, 2),
    Sketcher.Constraint("Equal", 2, 3),
    Sketcher.Constraint("Vertical", 0, 3, 1, 3),
    Sketcher.Constraint("Vertical", 1, 3, 2, 3),
    Sketcher.Constraint("Vertical", 2, 3, 3, 3),
    Sketcher.Constraint("Diameter", 0, Q("13 mm")),
    Sketcher.Constraint("DistanceX", -1, 1, 0, 3, Q("16 mm")),
    Sketcher.Constraint("DistanceY", 0, 3, -1, 1, Q("91 mm")),
    Sketcher.Constraint("DistanceY", -1, 1, 2, 3, Q("64 mm")),
    Sketcher.Constraint("DistanceY", 1, 3, -1, 1, Q("39.333333 mm")),
    Sketcher.Constraint("DistanceY", -1, 1, 3, 3, Q("12.333333 mm")),
])
pocket6 = body.newObject("PartDesign::Pocket", "Pocket005")
pocket6.Profile = sketch11
pocket6.Length = 17

sketch12 = body.newObject("Sketcher::SketchObject", "Sketch011")
sketch12.AttachmentSupport = (doc.getObject("XZ_Plane"), [""])
sketch12.MapMode = "FlatFace"
sketch12.AttachmentOffset = App.Placement(App.Vector(0, 0, -27.5), App.Rotation())
sketch12.addGeometry([
    Part.LineSegment(App.Vector(0, -129.494292, 0), App.Vector(0, 133.494364, 0)),
    Part.LineSegment(App.Vector(0, 133.494364, 0), App.Vector(9.5, 133.494364, 0)),
    Part.LineSegment(App.Vector(9.5, 133.494364, 0), App.Vector(9.5, -129.494292, 0)),
    Part.LineSegment(App.Vector(9.5, -129.494292, 0), App.Vector(0, -129.494292, 0)),
], False)
sketch12.addConstraint([
    Sketcher.Constraint("Coincident", 0, 2, 1, 1),
    Sketcher.Constraint("Coincident", 1, 2, 2, 1),
    Sketcher.Constraint("Coincident", 2, 2, 3, 1),
    Sketcher.Constraint("Coincident", 3, 2, 0, 1),
    Sketcher.Constraint("Vertical", 0),
    Sketcher.Constraint("Horizontal", 1),
    Sketcher.Constraint("Vertical", 2),
    Sketcher.Constraint("Horizontal", 3),
    Sketcher.Constraint("PointOnObject", 0, 2, -2),
    Sketcher.Constraint("DistanceX", 1, 1, 1, 2, Q("9.5 mm")),
    Sketcher.Constraint("DistanceY", 0, 1, 0, 2, Q("262.988655 mm")),
    Sketcher.Constraint("DistanceY", 2, 2, -1, 1, Q("129.494292 mm")),
])
pocket7 = body.newObject("PartDesign::Pocket", "Pocket006")
pocket7.Profile = sketch12
pocket7.Type = "ThroughAll"
pocket7.Reversed = True

sketch13 = body.newObject("Sketcher::SketchObject", "Sketch012")
sketch13.AttachmentSupport = (doc.getObject("XY_Plane"), [""])
sketch13.MapMode = "FlatFace"
sketch13.AttachmentOffset = App.Placement(App.Vector(0, 0, 85), App.Rotation())
sketch13.addGeometry([
    Part.LineSegment(App.Vector(9.5, 0, 0), App.Vector(9.5, -20, 0)),
    Part.LineSegment(App.Vector(9.5, -20, 0), App.Vector(12.5, -20, 0)),
    Part.LineSegment(App.Vector(12.5, -20, 0), App.Vector(12.5, 0, 0)),
    Part.LineSegment(App.Vector(12.5, 0, 0), App.Vector(9.5, 0, 0)),
], False)
sketch13.addConstraint([
    Sketcher.Constraint("Coincident", 0, 2, 1, 1),
    Sketcher.Constraint("Coincident", 1, 2, 2, 1),
    Sketcher.Constraint("Coincident", 2, 2, 3, 1),
    Sketcher.Constraint("Coincident", 3, 2, 0, 1),
    Sketcher.Constraint("Vertical", 0),
    Sketcher.Constraint("Horizontal", 1),
    Sketcher.Constraint("Vertical", 2),
    Sketcher.Constraint("Horizontal", 3),
    Sketcher.Constraint("PointOnObject", 2, 2, -1),
    Sketcher.Constraint("DistanceX", 1, 1, 1, 2, Q("3 mm")),
    Sketcher.Constraint("DistanceY", 0, 2, 0, 1, Q("20 mm")),
    Sketcher.Constraint("DistanceX", -1, 1, 0, 2, Q("9.5 mm")),
])
pocket8 = body.newObject("PartDesign::Pocket", "Pocket007")
pocket8.Profile = sketch13
pocket8.Type = "ThroughAll"

doc.recompute()
